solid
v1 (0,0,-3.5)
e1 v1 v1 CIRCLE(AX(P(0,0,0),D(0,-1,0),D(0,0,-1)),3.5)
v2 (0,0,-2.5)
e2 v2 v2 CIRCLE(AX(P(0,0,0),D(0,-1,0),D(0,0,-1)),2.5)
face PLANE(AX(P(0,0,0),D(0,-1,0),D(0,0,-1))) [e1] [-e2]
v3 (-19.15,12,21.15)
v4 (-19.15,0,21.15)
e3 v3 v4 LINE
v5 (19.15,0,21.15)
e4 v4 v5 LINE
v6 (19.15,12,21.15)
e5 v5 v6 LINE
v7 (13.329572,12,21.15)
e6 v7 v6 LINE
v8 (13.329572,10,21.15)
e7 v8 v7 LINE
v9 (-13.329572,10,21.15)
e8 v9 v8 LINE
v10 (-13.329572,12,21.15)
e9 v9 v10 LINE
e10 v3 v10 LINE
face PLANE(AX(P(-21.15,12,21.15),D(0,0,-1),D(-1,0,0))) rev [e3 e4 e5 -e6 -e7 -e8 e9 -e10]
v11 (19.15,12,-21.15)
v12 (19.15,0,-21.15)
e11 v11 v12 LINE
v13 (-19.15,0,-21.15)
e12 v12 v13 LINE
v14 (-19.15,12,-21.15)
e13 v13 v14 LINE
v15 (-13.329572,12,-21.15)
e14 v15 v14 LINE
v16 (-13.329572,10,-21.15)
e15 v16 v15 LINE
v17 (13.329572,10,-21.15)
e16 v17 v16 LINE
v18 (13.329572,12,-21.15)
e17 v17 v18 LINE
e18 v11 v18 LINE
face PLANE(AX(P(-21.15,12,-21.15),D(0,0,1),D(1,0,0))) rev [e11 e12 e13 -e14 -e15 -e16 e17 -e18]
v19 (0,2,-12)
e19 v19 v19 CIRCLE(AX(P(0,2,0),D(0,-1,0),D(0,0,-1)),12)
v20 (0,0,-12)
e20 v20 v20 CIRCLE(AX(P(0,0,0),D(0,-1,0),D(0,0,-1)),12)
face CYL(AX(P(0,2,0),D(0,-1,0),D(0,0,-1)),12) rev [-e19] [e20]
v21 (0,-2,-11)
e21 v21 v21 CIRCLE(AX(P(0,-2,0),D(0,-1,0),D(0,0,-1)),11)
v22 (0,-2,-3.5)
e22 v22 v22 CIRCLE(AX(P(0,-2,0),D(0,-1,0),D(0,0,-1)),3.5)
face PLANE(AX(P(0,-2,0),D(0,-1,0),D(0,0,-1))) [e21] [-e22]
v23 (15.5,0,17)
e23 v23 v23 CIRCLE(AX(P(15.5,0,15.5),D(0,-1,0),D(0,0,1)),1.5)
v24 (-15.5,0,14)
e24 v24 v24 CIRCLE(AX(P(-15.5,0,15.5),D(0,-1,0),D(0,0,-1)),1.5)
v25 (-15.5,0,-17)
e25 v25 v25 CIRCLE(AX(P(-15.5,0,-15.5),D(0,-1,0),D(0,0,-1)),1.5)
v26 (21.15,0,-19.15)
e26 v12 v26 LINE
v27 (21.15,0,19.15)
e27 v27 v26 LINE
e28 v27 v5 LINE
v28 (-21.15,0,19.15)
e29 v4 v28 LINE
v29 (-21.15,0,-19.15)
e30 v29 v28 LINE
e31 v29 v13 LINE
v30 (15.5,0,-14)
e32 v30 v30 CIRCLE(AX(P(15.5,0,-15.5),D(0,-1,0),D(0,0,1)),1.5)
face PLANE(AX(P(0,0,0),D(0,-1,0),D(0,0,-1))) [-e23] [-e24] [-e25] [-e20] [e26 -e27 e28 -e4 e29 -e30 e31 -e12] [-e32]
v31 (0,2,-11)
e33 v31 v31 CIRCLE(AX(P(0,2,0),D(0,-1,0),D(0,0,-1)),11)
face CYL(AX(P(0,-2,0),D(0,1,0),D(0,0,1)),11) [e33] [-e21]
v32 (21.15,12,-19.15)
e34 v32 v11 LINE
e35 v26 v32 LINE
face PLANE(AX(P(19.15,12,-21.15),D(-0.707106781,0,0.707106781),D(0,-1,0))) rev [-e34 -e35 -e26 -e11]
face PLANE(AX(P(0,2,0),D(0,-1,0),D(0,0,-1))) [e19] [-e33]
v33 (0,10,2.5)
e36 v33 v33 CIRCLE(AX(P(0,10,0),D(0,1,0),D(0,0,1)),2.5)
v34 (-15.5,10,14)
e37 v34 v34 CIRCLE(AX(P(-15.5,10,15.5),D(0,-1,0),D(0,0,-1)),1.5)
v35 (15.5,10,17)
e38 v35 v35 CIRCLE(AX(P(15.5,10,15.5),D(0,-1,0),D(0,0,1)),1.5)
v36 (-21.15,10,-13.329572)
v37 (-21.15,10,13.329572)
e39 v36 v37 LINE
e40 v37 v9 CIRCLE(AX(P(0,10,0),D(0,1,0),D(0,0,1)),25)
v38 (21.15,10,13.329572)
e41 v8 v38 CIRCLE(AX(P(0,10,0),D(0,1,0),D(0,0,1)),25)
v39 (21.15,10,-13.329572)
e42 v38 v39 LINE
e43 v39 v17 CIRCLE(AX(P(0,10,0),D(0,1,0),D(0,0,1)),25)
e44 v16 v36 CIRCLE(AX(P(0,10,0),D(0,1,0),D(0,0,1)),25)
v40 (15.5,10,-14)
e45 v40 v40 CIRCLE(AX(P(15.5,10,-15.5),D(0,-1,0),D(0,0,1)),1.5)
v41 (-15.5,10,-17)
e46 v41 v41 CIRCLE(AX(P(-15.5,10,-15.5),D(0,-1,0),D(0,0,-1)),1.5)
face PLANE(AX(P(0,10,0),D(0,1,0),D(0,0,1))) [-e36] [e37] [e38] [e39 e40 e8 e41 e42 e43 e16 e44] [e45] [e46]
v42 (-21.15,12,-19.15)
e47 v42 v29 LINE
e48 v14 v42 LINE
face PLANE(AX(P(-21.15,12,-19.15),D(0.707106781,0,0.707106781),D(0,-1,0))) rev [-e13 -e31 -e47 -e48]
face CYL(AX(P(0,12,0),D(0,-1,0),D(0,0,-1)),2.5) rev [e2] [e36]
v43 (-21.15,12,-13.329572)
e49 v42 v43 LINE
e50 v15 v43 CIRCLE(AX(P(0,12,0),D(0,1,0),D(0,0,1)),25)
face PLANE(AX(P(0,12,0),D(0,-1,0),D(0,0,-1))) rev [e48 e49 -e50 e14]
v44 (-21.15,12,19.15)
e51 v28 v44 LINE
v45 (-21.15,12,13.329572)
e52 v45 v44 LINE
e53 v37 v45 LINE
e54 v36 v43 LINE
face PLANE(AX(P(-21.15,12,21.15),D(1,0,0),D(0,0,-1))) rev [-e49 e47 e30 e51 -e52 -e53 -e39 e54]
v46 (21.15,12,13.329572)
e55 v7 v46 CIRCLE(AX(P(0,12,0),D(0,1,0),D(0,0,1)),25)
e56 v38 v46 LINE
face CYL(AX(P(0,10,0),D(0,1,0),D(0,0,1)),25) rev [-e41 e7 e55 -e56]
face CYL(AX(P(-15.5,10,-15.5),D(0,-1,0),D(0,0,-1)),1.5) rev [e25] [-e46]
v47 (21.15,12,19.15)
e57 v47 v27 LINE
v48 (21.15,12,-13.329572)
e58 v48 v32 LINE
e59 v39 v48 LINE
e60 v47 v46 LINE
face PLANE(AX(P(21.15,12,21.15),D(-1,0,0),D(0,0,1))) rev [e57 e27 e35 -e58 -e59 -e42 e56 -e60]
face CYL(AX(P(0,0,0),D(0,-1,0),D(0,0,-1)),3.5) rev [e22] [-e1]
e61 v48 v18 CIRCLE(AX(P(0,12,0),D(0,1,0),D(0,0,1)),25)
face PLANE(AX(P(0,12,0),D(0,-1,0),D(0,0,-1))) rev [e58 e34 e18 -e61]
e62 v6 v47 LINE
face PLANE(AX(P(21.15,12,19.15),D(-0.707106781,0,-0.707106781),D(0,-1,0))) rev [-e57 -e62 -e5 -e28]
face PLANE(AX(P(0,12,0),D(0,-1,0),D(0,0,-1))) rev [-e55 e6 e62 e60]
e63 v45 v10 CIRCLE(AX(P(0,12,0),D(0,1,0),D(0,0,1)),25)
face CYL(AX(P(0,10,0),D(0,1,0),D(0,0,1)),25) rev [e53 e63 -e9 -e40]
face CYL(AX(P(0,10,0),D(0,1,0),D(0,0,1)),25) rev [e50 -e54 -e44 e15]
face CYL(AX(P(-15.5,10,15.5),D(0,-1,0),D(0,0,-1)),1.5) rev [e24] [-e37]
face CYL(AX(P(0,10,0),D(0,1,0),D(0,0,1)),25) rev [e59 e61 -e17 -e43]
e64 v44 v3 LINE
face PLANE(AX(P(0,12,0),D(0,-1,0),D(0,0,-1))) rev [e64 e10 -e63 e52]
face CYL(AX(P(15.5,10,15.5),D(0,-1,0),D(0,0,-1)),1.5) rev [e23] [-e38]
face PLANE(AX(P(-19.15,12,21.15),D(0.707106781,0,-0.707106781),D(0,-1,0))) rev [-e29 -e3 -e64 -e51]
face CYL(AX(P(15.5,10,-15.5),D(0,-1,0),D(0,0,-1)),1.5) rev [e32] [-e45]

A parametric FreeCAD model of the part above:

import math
import FreeCAD as App
import Part
import Sketcher

V = App.Vector
Q = App.Units.Quantity


def edges_at(feature, points):
    """Names of the edges that pass closest to the given points."""
    edges = feature.Shape.Edges
    near = lambda p: min(range(len(edges)), key=lambda i: edges[i].distToShape(Part.Vertex(*p))[0])
    return sorted({f"Edge{near(p) + 1}" for p in points})


def add_polygon(sketch, points):
    """Adds a closed chain of lines whose ends are joined by coincident constraints."""
    first, n = sketch.GeometryCount, len(points)
    for a, b in zip(points, points[1:] + points[:1]):
        sketch.addGeometry(Part.LineSegment(App.Vector(*a, 0), App.Vector(*b, 0)), False)
    for i in range(n):
        sketch.addConstraint(Sketcher.Constraint("Coincident", first + i, 2, first + (i + 1) % n, 1))

doc = App.newDocument("Part")
body = doc.addObject("PartDesign::Body", "Body")

sketch1 = body.newObject("Sketcher::SketchObject", "Sketch")
sketch1.AttachmentSupport = (doc.getObject("XZ_Plane"), [""])
sketch1.MapMode = "FlatFace"
add_polygon(sketch1, [(-21, -21), (-21, 21), (21, 21), (21, -21)])
sketch1.addConstraint([
    Sketcher.Constraint("Vertical", 0),
    Sketcher.Constraint("Horizontal", 1),
    Sketcher.Constraint("Vertical", 2),
    Sketcher.Constraint("Horizontal", 3),
    Sketcher.Constraint("Symmetric", 0, 2, 2, 2, -1, 1),
    Sketcher.Constraint("Equal", 3, 0),
    Sketcher.Constraint("DistanceX", 1, 1, 1, 2, Q("42.3 mm")),
])
pad1 = body.newObject("PartDesign::Pad", "Pad")
pad1.Profile = sketch1
pad1.Length = 12
pad1.Reversed = True

sketch2 = body.newObject("Sketcher::SketchObject", "Sketch001")
sketch2.AttachmentSupport = (doc.getObject("XZ_Plane"), [""])
sketch2.MapMode = "FlatFace"
sketch2.AttachmentOffset = App.Placement(V(0, 0, -12), App.Rotation())
sketch2.addGeometry([
    Part.LineSegment(V(-21, -13, 0), V(-21, 13, 0)),
    Part.ArcOfCircle(Part.Circle(V(0, 0, 0), V(0, 0, 1), 25), math.radians(122), math.radians(148)),
    Part.LineSegment(V(-13, 21, 0), V(13, 21, 0)),
    Part.ArcOfCircle(Part.Circle(V(0, 0, 0), V(0, 0, 1), 25), math.radians(32), math.radians(58)),
    Part.LineSegment(V(21, 13, 0), V(21, -13, 0)),
    Part.ArcOfCircle(Part.Circle(V(0, 0, 0), V(0, 0, 1), 25), math.radians(-58), math.radians(-32)),
    Part.LineSegment(V(13, -21, 0), V(-13, -21, 0)),
    Part.ArcOfCircle(Part.Circle(V(0, 0, 0), V(0, 0, 1), 25), math.radians(-148), math.radians(-122)),
], False)
sketch2.addConstraint([
    Sketcher.Constraint("Coincident", 0, 2, 1, 2),
    Sketcher.Constraint("Coincident", 1, 1, 2, 1),
    Sketcher.Constraint("Coincident", 2, 2, 3, 2),
    Sketcher.Constraint("Coincident", 3, 1, 4, 1),
    Sketcher.Constraint("Coincident", 4, 2, 5, 2),
    Sketcher.Constraint("Coincident", 5, 1, 6, 1),
    Sketcher.Constraint("Coincident", 6, 2, 7, 2),
    Sketcher.Constraint("Coincident", 7, 1, 0, 1),
    Sketcher.Constraint("Vertical", 0),
    Sketcher.Constraint("Horizontal", 2),
    Sketcher.Constraint("Vertical", 4),
    Sketcher.Constraint("Horizontal", 6),
    Sketcher.Constraint("Coincident", 1, 3, -1, 1),
    Sketcher.Constraint("Coincident", 3, 3, -1, 1),
    Sketcher.Constraint("Coincident", 5, 3, -1, 1),
    Sketcher.Constraint("Coincident", 7, 3, -1, 1),
    Sketcher.Constraint("Equal", 1, 3),
    Sketcher.Constraint("Equal", 3, 5),
    Sketcher.Constraint("Equal", 5, 7),
    Sketcher.Constraint("Horizontal", 0, 2, 3, 1),
    Sketcher.Constraint("Vertical", 2, 2, 5, 1),
    Sketcher.Constraint("Equal", 6, 0),
    Sketcher.Constraint("Radius", 1, Q("25 mm")),
    Sketcher.Constraint("DistanceX", 0, 2, -1, 1, Q("21.15 mm")),
])
pocket1 = body.newObject("PartDesign::Pocket", "Pocket")
pocket1.Profile = sketch2
pocket1.Length = 2
pocket1.Reversed = True
doc.recompute()

chamfer = body.newObject("PartDesign::Chamfer", "Chamfer")
chamfer.Base = (pocket1, edges_at(pocket1, [
    (21.15, 6, 21.15),
    (-21.15, 6, 21.15),
    (-21.15, 6, -21.15),
    (21.15, 6, -21.15),
]))
chamfer.Size = 2

sketch3 = body.newObject("Sketcher::SketchObject", "Sketch002")
sketch3.AttachmentSupport = (doc.getObject("XZ_Plane"), [""])
sketch3.MapMode = "FlatFace"
sketch3.addGeometry([
    Part.Circle(V(-15.5, 15.5, 0), V(0, 0, 1), 1.5),
    Part.Circle(V(-15.5, -15.5, 0), V(0, 0, 1), 1.5),
    Part.Circle(V(15.5, -15.5, 0), V(0, 0, 1), 1.5),
    Part.Circle(V(15.5, 15.5, 0), V(0, 0, 1), 1.5),
], False)
sketch3.addConstraint([
    Sketcher.Constraint("Equal", 0, 1),
    Sketcher.Constraint("Equal", 1, 2),
    Sketcher.Constraint("Equal", 2, 3),
    Sketcher.Constraint("Symmetric", 0, 3, 2, 3, -1, 1),
    Sketcher.Constraint("Symmetric", 1, 3, 3, 3, -1, 1),
    Sketcher.Constraint("Symmetric", 1, 3, 2, 3, -2),
    Sketcher.Constraint("Diameter", 0, Q("3 mm")),
    Sketcher.Constraint("DistanceY", 1, 3, 0, 3, Q("31 mm")),
    Sketcher.Constraint("DistanceX", 1, 3, 2, 3, Q("31 mm")),
])
pocket2 = body.newObject("PartDesign::Pocket", "Pocket001")
pocket2.Profile = sketch3
pocket2.Length = 10

sketch4 = body.newObject("Sketcher::SketchObject", "Sketch003")
sketch4.AttachmentSupport = (doc.getObject("XZ_Plane"), [""])
sketch4.MapMode = "FlatFace"
sketch4.addGeometry(Part.Circle(V(0, 0, 0), V(0, 0, 1), 12), False)
sketch4.addConstraint([
    Sketcher.Constraint("Coincident", 0, 3, -1, 1),
    Sketcher.Constraint("Diameter", 0, Q("24 mm")),
])
pocket3 = body.newObject("PartDesign::Pocket", "Pocket002")
pocket3.Profile = sketch4
pocket3.Length = 2

sketch5 = body.newObject("Sketcher::SketchObject", "Sketch004")
sketch5.AttachmentSupport = (doc.getObject("XZ_Plane"), [""])
sketch5.MapMode = "FlatFace"
sketch5.AttachmentOffset = App.Placement(V(0, 0, -2), App.Rotation())
sketch5.addGeometry(Part.Circle(V(0, 0, 0), V(0, 0, 1), 11), False)
sketch5.addConstraint([
    Sketcher.Constraint("Coincident", 0, 3, -1, 1),
    Sketcher.Constraint("Diameter", 0, Q("22 mm")),
])
pad2 = body.newObject("PartDesign::Pad", "Pad001")
pad2.Profile = sketch5
pad2.Length = 4

sketch6 = body.newObject("Sketcher::SketchObject", "Sketch005")
sketch6.AttachmentSupport = (doc.getObject("XZ_Plane"), [""])
sketch6.MapMode = "FlatFace"
sketch6.AttachmentOffset = App.Placement(V(0, 0, 2), App.Rotation())
sketch6.addGeometry(Part.Circle(V(0, 0, 0), V(0, 0, 1), 3.5), False)
sketch6.addConstraint([
    Sketcher.Constraint("Coincident", 0, 3, -1, 1),
    Sketcher.Constraint("Diameter", 0, Q("7 mm")),
])
pocket4 = body.newObject("PartDesign::Pocket", "Pocket003")
pocket4.Profile = sketch6
pocket4.Length = 2

sketch7 = body.newObject("Sketcher::SketchObject", "Sketch006")
sketch7.AttachmentSupport = (doc.getObject("XZ_Plane"), [""])
sketch7.MapMode = "FlatFace"
sketch7.addGeometry(Part.Circle(V(0, 0, 0), V(0, 0, 1), 2.5), False)
sketch7.addConstraint([
    Sketcher.Constraint("Coincident", 0, 3, -1, 1),
    Sketcher.Constraint("Diameter", 0, Q("5 mm")),
])
pocket5 = body.newObject("PartDesign::Pocket", "Pocket004")
pocket5.Profile = sketch7
pocket5.Type = "ThroughAll"

doc.recompute()
